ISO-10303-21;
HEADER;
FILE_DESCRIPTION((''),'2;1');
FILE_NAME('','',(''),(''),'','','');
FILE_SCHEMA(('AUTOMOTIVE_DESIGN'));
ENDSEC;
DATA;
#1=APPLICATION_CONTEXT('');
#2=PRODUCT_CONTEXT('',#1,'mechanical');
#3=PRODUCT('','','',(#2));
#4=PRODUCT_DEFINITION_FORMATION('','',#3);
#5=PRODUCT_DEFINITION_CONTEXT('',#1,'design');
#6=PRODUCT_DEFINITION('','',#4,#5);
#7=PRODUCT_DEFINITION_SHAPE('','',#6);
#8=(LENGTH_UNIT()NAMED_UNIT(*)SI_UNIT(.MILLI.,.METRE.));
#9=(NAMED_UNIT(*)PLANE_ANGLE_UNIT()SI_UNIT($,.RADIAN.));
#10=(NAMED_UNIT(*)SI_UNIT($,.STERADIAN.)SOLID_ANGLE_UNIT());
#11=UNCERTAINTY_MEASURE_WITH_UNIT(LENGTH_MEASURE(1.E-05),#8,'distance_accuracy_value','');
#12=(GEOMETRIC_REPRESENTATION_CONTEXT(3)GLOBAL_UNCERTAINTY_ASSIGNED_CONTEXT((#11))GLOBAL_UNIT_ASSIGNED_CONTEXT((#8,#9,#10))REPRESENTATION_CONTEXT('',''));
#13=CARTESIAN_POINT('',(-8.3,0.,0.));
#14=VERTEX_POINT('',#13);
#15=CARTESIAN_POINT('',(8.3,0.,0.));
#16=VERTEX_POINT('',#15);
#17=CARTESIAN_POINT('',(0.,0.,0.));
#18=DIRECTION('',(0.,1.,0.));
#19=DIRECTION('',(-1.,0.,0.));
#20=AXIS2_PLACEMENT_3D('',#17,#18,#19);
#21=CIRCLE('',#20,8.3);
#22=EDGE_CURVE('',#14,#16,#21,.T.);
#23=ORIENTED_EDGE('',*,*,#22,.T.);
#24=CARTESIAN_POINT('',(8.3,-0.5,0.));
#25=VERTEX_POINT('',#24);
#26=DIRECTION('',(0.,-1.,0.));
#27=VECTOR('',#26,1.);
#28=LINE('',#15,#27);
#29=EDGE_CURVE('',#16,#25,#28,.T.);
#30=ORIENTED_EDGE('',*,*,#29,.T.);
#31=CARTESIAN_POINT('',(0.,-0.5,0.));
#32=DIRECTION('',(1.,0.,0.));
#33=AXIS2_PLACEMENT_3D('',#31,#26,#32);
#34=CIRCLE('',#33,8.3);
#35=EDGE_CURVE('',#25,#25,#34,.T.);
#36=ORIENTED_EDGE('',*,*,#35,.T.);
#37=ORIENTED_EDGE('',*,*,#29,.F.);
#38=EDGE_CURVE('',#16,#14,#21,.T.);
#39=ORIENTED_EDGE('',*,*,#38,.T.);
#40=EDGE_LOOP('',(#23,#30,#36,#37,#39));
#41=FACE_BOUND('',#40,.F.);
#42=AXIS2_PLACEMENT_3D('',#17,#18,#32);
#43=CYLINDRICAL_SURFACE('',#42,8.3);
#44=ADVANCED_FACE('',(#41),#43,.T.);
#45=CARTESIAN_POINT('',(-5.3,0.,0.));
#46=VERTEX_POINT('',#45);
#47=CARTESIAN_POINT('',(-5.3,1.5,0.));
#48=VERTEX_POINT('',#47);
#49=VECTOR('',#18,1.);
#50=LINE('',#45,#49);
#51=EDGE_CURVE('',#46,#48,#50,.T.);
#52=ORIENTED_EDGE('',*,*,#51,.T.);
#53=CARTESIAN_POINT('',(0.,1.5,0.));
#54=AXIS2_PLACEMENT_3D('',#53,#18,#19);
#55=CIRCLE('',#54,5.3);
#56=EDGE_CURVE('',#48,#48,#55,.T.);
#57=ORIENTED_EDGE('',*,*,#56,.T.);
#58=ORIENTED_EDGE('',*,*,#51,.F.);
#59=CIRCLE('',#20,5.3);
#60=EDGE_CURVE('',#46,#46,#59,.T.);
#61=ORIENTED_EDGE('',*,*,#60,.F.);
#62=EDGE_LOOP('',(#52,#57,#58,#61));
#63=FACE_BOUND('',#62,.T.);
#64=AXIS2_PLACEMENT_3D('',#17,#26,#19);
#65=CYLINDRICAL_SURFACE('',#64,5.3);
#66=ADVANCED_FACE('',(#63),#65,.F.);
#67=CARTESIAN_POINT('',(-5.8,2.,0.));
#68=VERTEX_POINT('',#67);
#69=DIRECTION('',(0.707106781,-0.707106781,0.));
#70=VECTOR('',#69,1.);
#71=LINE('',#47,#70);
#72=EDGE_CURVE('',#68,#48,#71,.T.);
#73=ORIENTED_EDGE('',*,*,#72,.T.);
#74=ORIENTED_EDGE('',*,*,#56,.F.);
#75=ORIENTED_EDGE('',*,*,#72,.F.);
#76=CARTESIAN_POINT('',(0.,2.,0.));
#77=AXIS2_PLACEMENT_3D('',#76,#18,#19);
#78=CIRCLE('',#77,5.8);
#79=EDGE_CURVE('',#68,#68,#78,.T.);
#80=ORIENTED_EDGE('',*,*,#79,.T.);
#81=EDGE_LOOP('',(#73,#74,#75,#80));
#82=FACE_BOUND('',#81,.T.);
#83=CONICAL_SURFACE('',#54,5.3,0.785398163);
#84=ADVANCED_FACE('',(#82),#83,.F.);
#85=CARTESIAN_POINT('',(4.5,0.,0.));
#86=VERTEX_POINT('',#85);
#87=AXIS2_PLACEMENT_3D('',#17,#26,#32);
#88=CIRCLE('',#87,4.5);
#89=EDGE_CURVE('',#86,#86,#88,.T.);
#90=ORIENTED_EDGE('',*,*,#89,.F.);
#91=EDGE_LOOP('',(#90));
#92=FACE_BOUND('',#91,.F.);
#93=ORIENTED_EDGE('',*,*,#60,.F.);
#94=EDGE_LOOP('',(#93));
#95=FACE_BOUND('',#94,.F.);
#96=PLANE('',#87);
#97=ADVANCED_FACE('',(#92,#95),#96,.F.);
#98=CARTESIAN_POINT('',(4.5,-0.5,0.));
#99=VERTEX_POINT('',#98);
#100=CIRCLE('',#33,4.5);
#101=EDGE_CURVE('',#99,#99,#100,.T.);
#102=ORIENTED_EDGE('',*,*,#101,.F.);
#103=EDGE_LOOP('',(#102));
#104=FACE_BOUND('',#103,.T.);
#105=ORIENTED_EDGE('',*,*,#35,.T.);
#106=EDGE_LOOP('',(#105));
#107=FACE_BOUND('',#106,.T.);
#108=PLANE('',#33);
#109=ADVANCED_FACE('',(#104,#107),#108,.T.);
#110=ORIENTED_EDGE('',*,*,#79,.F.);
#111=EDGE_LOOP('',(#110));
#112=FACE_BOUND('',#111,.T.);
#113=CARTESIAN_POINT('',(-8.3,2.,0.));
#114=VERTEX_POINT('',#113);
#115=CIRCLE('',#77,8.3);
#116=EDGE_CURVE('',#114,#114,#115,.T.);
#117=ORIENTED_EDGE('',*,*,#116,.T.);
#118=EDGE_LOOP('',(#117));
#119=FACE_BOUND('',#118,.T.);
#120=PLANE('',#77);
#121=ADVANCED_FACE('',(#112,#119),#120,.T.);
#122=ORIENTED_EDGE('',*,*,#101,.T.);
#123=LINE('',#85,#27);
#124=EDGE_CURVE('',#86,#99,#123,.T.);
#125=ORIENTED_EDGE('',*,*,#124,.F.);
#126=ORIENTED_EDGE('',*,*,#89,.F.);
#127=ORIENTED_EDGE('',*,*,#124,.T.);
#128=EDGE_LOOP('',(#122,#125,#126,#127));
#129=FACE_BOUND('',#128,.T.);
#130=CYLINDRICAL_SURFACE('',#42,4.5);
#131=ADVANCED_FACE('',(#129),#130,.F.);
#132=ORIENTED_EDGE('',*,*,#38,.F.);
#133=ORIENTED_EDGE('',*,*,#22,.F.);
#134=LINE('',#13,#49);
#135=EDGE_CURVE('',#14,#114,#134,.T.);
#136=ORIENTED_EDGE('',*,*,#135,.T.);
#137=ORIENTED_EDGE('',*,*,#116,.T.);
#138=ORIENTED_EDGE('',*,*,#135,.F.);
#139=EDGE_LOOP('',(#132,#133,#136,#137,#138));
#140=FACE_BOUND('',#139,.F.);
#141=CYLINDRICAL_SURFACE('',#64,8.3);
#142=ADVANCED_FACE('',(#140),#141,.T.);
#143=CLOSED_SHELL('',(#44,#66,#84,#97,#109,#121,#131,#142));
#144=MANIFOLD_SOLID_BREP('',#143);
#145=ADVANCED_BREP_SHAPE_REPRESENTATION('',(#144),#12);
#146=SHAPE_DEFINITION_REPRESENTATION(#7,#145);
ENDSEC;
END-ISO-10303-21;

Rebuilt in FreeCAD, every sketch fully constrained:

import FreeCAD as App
import Part
import Sketcher
Q = App.Units.Quantity


def edges_at(feature, points):
    """Names of the edges that pass closest to the given points."""
    edges = feature.Shape.Edges
    near = lambda p: min(range(len(edges)), key=lambda i: edges[i].distToShape(Part.Vertex(*p))[0])
    return sorted({f"Edge{near(p) + 1}" for p in points})

doc = App.newDocument("Part")
params = doc.addObject("Spreadsheet::Sheet", "Params")
for row, (alias, value) in enumerate([
    ("sketch1_diameter", "10.6 mm"),
    ("sketch1_diameter2", "16.6 mm"),
    ("pad1_length", "2 mm"),
    ("sketch2_diameter", "9 mm"),
    ("sketch2_diameter2", "16.6 mm"),
    ("pad2_length", "0.5 mm"),
    ("chamfer_size", "0.5 mm"),
], start=1):
    params.set(f"A{row}", alias)
    params.set(f"B{row}", "=" + value)
    params.setAlias(f"B{row}", alias)

body = doc.addObject("PartDesign::Body", "Body")

sketch1 = body.newObject("Sketcher::SketchObject", "Sketch")
sketch1.AttachmentSupport = (doc.getObject("XZ_Plane"), [""])
sketch1.MapMode = "FlatFace"
sketch1.addGeometry([
    Part.Circle(App.Vector(0, 0, 0), App.Vector(0, 0, 1), 8),
    Part.Circle(App.Vector(0, 0, 0), App.Vector(0, 0, 1), 5),
], False)
sketch1.addConstraint([
    Sketcher.Constraint("Coincident", 0, 3, -1, 1),
    Sketcher.Constraint("Coincident", 1, 3, -1, 1),
    Sketcher.Constraint("Diameter", 1, Q("10.6 mm")),
    Sketcher.Constraint("Diameter", 0, Q("16.6 mm")),
])
sketch1.setExpression("Constraints[2]", "Params.sketch1_diameter")
sketch1.setExpression("Constraints[3]", "Params.sketch1_diameter2")
pad1 = body.newObject("PartDesign::Pad", "Pad")
pad1.Profile = sketch1
pad1.setExpression("Length", "Params.pad1_length")
pad1.Reversed = True

sketch2 = body.newObject("Sketcher::SketchObject", "Sketch001")
sketch2.AttachmentSupport = (doc.getObject("XZ_Plane"), [""])
sketch2.MapMode = "FlatFace"
sketch2.addGeometry([
    Part.Circle(App.Vector(0, 0, 0), App.Vector(0, 0, 1), 8.3),
    Part.Circle(App.Vector(0, 0, 0), App.Vector(0, 0, 1), 4.5),
], False)
sketch2.addConstraint([
    Sketcher.Constraint("Coincident", 0, 3, -1, 1),
    Sketcher.Constraint("Coincident", 1, 3, -1, 1),
    Sketcher.Constraint("Diameter", 1, Q("9 mm")),
    Sketcher.Constraint("Diameter", 0, Q("16.6 mm")),
])
sketch2.setExpression("Constraints[2]", "Params.sketch2_diameter")
sketch2.setExpression("Constraints[3]", "Params.sketch2_diameter2")
pad2 = body.newObject("PartDesign::Pad", "Pad001")
pad2.Profile = sketch2
pad2.setExpression("Length", "Params.pad2_length")
doc.recompute()

chamfer = body.newObject("PartDesign::Chamfer", "Chamfer")
chamfer.Base = (pad2, edges_at(pad2, [(5.3, 2, 0)]))
chamfer.setExpression("Size", "Params.chamfer_size")

doc.recompute()
